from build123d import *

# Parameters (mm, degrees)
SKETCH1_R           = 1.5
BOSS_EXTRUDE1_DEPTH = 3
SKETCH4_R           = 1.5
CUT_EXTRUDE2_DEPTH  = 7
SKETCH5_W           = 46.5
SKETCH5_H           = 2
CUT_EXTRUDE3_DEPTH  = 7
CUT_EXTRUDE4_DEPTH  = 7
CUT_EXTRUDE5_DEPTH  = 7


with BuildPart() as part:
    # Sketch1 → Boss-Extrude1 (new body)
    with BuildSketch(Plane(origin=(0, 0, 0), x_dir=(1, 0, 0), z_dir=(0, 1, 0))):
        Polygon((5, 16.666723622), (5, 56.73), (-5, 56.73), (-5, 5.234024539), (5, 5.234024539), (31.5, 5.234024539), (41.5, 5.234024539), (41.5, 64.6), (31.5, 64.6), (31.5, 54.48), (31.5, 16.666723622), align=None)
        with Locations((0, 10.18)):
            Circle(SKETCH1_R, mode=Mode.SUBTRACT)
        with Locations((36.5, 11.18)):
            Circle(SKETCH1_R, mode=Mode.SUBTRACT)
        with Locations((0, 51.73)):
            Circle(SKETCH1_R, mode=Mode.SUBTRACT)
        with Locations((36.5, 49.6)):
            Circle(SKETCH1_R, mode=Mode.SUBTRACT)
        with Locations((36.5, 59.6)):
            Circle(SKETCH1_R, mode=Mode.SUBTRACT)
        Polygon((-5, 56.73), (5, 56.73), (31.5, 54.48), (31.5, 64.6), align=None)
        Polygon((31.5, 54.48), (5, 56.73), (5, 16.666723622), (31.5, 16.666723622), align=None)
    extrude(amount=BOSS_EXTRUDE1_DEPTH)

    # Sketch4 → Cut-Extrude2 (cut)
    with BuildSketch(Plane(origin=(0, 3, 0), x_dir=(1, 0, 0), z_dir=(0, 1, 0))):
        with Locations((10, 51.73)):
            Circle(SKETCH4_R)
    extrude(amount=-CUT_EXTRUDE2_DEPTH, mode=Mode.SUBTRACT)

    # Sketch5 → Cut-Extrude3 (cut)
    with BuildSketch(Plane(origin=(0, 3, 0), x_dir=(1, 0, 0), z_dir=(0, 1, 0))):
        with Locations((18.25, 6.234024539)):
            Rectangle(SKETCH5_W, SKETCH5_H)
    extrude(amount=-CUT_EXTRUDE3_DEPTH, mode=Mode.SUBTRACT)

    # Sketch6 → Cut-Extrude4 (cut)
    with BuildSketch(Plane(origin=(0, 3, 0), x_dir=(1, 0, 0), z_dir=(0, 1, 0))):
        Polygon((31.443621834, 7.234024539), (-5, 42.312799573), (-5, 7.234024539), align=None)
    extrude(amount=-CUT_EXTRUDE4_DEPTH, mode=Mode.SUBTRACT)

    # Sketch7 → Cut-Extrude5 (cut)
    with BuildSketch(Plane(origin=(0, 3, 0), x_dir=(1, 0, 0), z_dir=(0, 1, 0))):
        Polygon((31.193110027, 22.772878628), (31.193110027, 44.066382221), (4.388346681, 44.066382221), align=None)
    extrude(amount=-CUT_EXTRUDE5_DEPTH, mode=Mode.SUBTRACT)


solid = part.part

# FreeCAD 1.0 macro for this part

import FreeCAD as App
import Part
import Sketcher
Q = App.Units.Quantity

doc = App.newDocument("Part")
body = doc.addObject("PartDesign::Body", "Body")

# Sketch on XZ plane
sketch1 = body.newObject("Sketcher::SketchObject", "Sketch")
sketch1.AttachmentSupport = (doc.getObject("XZ_Plane"), [""])
sketch1.MapMode = "FlatFace"
sketch1.addGeometry(Part.LineSegment(App.Vector(41.5, -64.6, 0), App.Vector(31.5, -64.6, 0)), False)
sketch1.addGeometry(Part.LineSegment(App.Vector(31.5, -64.6, 0), App.Vector(-5, -56.73, 0)), False)
sketch1.addGeometry(Part.LineSegment(App.Vector(-5, -56.73, 0), App.Vector(-5, -5.234025, 0)), False)
sketch1.addGeometry(Part.LineSegment(App.Vector(-5, -5.234025, 0), App.Vector(41.5, -5.234025, 0)), False)
sketch1.addGeometry(Part.LineSegment(App.Vector(41.5, -5.234025, 0), App.Vector(41.5, -64.6, 0)), False)
sketch1.addGeometry(Part.Circle(App.Vector(0, -10.18, 0), App.Vector(0, 0, 1), 1.5), False)
sketch1.addGeometry(Part.Circle(App.Vector(36.5, -11.18, 0), App.Vector(0, 0, 1), 1.5), False)
sketch1.addGeometry(Part.Circle(App.Vector(0, -51.73, 0), App.Vector(0, 0, 1), 1.5), False)
sketch1.addGeometry(Part.Circle(App.Vector(36.5, -49.6, 0), App.Vector(0, 0, 1), 1.5), False)
sketch1.addGeometry(Part.Circle(App.Vector(36.5, -59.6, 0), App.Vector(0, 0, 1), 1.5), False)
sketch1.addConstraint(Sketcher.Constraint("Coincident", 0, 2, 1, 1))
sketch1.addConstraint(Sketcher.Constraint("Coincident", 1, 2, 2, 1))
sketch1.addConstraint(Sketcher.Constraint("Coincident", 2, 2, 3, 1))
sketch1.addConstraint(Sketcher.Constraint("Coincident", 3, 2, 4, 1))
sketch1.addConstraint(Sketcher.Constraint("Coincident", 4, 2, 0, 1))
sketch1.addConstraint(Sketcher.Constraint("Horizontal", 0))
sketch1.addConstraint(Sketcher.Constraint("Vertical", 2))
sketch1.addConstraint(Sketcher.Constraint("Horizontal", 3))
sketch1.addConstraint(Sketcher.Constraint("Vertical", 4))
sketch1.addConstraint(Sketcher.Constraint("Equal", 5, 6))
sketch1.addConstraint(Sketcher.Constraint("Equal", 6, 7))
sketch1.addConstraint(Sketcher.Constraint("Equal", 7, 8))
sketch1.addConstraint(Sketcher.Constraint("Equal", 8, 9))
sketch1.addConstraint(Sketcher.Constraint("PointOnObject", 5, 3, -2))
sketch1.addConstraint(Sketcher.Constraint("PointOnObject", 7, 3, -2))
sketch1.addConstraint(Sketcher.Constraint("Vertical", 6, 3, 8, 3))
sketch1.addConstraint(Sketcher.Constraint("Vertical", 8, 3, 9, 3))
sketch1.addConstraint(Sketcher.Constraint("Diameter", 5, Q("3 mm")))
sketch1.addConstraint(Sketcher.Constraint("DistanceX", 0, 2, 0, 1, Q("10 mm")))
sketch1.addConstraint(Sketcher.Constraint("DistanceX", 3, 1, 3, 2, Q("46.5 mm")))
sketch1.addConstraint(Sketcher.Constraint("DistanceX", 1, 2, -1, 1, Q("5 mm")))
sketch1.addConstraint(Sketcher.Constraint("DistanceY", 6, 3, 5, 3, Q("1 mm")))
sketch1.addConstraint(Sketcher.Constraint("DistanceY", 9, 3, 8, 3, Q("10 mm")))
sketch1.addConstraint(Sketcher.Constraint("DistanceX", 0, 2, 9, 3, Q("5 mm")))
sketch1.addConstraint(Sketcher.Constraint("DistanceY", 0, 2, 9, 3, Q("5 mm")))
sketch1.addConstraint(Sketcher.Constraint("DistanceY", 1, 2, 7, 3, Q("5 mm")))
sketch1.addConstraint(Sketcher.Constraint("DistanceY", 8, 3, -1, 1, Q("49.6 mm")))
sketch1.addConstraint(Sketcher.Constraint("DistanceY", 5, 3, -1, 1, Q("10.18 mm")))
sketch1.addConstraint(Sketcher.Constraint("DistanceY", 7, 3, -1, 1, Q("51.73 mm")))
sketch1.addConstraint(Sketcher.Constraint("DistanceY", 2, 1, 2, 2, Q("51.495975 mm")))
pad1 = body.newObject("PartDesign::Pad", "Pad")
pad1.Profile = sketch1
pad1.Length = 3
pad1.Reversed = True

# Sketch on XZ plane
sketch2 = body.newObject("Sketcher::SketchObject", "Sketch001")
sketch2.AttachmentSupport = (doc.getObject("XZ_Plane"), [""])
sketch2.MapMode = "FlatFace"
sketch2.AttachmentOffset = App.Placement(App.Vector(0, 0, -3), App.Rotation())
sketch2.addGeometry(Part.Circle(App.Vector(10, -51.73, 0), App.Vector(0, 0, 1), 1.5), False)
sketch2.addConstraint(Sketcher.Constraint("Diameter", 0, Q("3 mm")))
sketch2.addConstraint(Sketcher.Constraint("DistanceX", -1, 1, 0, 3, Q("10 mm")))
sketch2.addConstraint(Sketcher.Constraint("DistanceY", 0, 3, -1, 1, Q("51.73 mm")))
pocket1 = body.newObject("PartDesign::Pocket", "Pocket")
pocket1.Profile = sketch2
pocket1.Length = 7
pocket1.Reversed = True

# Sketch on XZ plane
sketch3 = body.newObject("Sketcher::SketchObject", "Sketch002")
sketch3.AttachmentSupport = (doc.getObject("XZ_Plane"), [""])
sketch3.MapMode = "FlatFace"
sketch3.AttachmentOffset = App.Placement(App.Vector(0, 0, -3), App.Rotation())
sketch3.addGeometry(Part.LineSegment(App.Vector(-5, -7.234025, 0), App.Vector(-5, -5.234025, 0)), False)
sketch3.addGeometry(Part.LineSegment(App.Vector(-5, -5.234025, 0), App.Vector(41.5, -5.234025, 0)), False)
sketch3.addGeometry(Part.LineSegment(App.Vector(41.5, -5.234025, 0), App.Vector(41.5, -7.234025, 0)), False)
sketch3.addGeometry(Part.LineSegment(App.Vector(41.5, -7.234025, 0), App.Vector(-5, -7.234025, 0)), False)
sketch3.addConstraint(Sketcher.Constraint("Coincident", 0, 2, 1, 1))
sketch3.addConstraint(Sketcher.Constraint("Coincident", 1, 2, 2, 1))
sketch3.addConstraint(Sketcher.Constraint("Coincident", 2, 2, 3, 1))
sketch3.addConstraint(Sketcher.Constraint("Coincident", 3, 2, 0, 1))
sketch3.addConstraint(Sketcher.Constraint("Vertical", 0))
sketch3.addConstraint(Sketcher.Constraint("Horizontal", 1))
sketch3.addConstraint(Sketcher.Constraint("Vertical", 2))
sketch3.addConstraint(Sketcher.Constraint("Horizontal", 3))
sketch3.addConstraint(Sketcher.Constraint("DistanceY", 0, 1, 0, 2, Q("2 mm")))
sketch3.addConstraint(Sketcher.Constraint("DistanceX", 1, 1, 1, 2, Q("46.5 mm")))
sketch3.addConstraint(Sketcher.Constraint("DistanceX", 0, 2, -1, 1, Q("5 mm")))
sketch3.addConstraint(Sketcher.Constraint("DistanceY", 0, 2, -1, 1, Q("5.234025 mm")))
pocket2 = body.newObject("PartDesign::Pocket", "Pocket001")
pocket2.Profile = sketch3
pocket2.Length = 7
pocket2.Reversed = True

# Sketch on XZ plane
sketch4 = body.newObject("Sketcher::SketchObject", "Sketch003")
sketch4.AttachmentSupport = (doc.getObject("XZ_Plane"), [""])
sketch4.MapMode = "FlatFace"
sketch4.AttachmentOffset = App.Placement(App.Vector(0, 0, -3), App.Rotation())
sketch4.addGeometry(Part.LineSegment(App.Vector(31.443622, -7.234025, 0), App.Vector(-5, -42.3128, 0)), False)
sketch4.addGeometry(Part.LineSegment(App.Vector(-5, -42.3128, 0), App.Vector(-5, -7.234025, 0)), False)
sketch4.addGeometry(Part.LineSegment(App.Vector(-5, -7.234025, 0), App.Vector(31.443622, -7.234025, 0)), False)
sketch4.addConstraint(Sketcher.Constraint("Coincident", 0, 2, 1, 1))
sketch4.addConstraint(Sketcher.Constraint("Coincident", 1, 2, 2, 1))
sketch4.addConstraint(Sketcher.Constraint("Coincident", 2, 2, 0, 1))
sketch4.addConstraint(Sketcher.Constraint("Vertical", 1))
sketch4.addConstraint(Sketcher.Constraint("Horizontal", 2))
sketch4.addConstraint(Sketcher.Constraint("DistanceX", 0, 2, -1, 1, Q("5 mm")))
sketch4.addConstraint(Sketcher.Constraint("DistanceX", 2, 1, 2, 2, Q("36.443622 mm")))
sketch4.addConstraint(Sketcher.Constraint("DistanceY", 0, 2, -1, 1, Q("42.3128 mm")))
sketch4.addConstraint(Sketcher.Constraint("Distance", 0, Q("50.583179 mm")))
pocket3 = body.newObject("PartDesign::Pocket", "Pocket002")
pocket3.Profile = sketch4
pocket3.Length = 7
pocket3.Reversed = True

# Sketch on XZ plane
sketch5 = body.newObject("Sketcher::SketchObject", "Sketch004")
sketch5.AttachmentSupport = (doc.getObject("XZ_Plane"), [""])
sketch5.MapMode = "FlatFace"
sketch5.AttachmentOffset = App.Placement(App.Vector(0, 0, -3), App.Rotation())
sketch5.addGeometry(Part.LineSegment(App.Vector(31.19311, -22.772879, 0), App.Vector(31.19311, -44.066382, 0)), False)
sketch5.addGeometry(Part.LineSegment(App.Vector(31.19311, -44.066382, 0), App.Vector(4.388347, -44.066382, 0)), False)
sketch5.addGeometry(Part.LineSegment(App.Vector(4.388347, -44.066382, 0), App.Vector(31.19311, -22.772879, 0)), False)
sketch5.addConstraint(Sketcher.Constraint("Coincident", 0, 2, 1, 1))
sketch5.addConstraint(Sketcher.Constraint("Coincident", 1, 2, 2, 1))
sketch5.addConstraint(Sketcher.Constraint("Coincident", 2, 2, 0, 1))
sketch5.addConstraint(Sketcher.Constraint("Vertical", 0))
sketch5.addConstraint(Sketcher.Constraint("Horizontal", 1))
sketch5.addConstraint(Sketcher.Constraint("Distance", 2, Q("34.233151 mm")))
sketch5.addConstraint(Sketcher.Constraint("DistanceX", 1, 2, 1, 1, Q("26.804763 mm")))
sketch5.addConstraint(Sketcher.Constraint("DistanceX", -1, 1, 0, 2, Q("31.19311 mm")))
sketch5.addConstraint(Sketcher.Constraint("DistanceY", 2, 2, -1, 1, Q("22.772879 mm")))
pocket4 = body.newObject("PartDesign::Pocket", "Pocket003")
pocket4.Profile = sketch5
pocket4.Length = 7
pocket4.Reversed = True

doc.recompute()
